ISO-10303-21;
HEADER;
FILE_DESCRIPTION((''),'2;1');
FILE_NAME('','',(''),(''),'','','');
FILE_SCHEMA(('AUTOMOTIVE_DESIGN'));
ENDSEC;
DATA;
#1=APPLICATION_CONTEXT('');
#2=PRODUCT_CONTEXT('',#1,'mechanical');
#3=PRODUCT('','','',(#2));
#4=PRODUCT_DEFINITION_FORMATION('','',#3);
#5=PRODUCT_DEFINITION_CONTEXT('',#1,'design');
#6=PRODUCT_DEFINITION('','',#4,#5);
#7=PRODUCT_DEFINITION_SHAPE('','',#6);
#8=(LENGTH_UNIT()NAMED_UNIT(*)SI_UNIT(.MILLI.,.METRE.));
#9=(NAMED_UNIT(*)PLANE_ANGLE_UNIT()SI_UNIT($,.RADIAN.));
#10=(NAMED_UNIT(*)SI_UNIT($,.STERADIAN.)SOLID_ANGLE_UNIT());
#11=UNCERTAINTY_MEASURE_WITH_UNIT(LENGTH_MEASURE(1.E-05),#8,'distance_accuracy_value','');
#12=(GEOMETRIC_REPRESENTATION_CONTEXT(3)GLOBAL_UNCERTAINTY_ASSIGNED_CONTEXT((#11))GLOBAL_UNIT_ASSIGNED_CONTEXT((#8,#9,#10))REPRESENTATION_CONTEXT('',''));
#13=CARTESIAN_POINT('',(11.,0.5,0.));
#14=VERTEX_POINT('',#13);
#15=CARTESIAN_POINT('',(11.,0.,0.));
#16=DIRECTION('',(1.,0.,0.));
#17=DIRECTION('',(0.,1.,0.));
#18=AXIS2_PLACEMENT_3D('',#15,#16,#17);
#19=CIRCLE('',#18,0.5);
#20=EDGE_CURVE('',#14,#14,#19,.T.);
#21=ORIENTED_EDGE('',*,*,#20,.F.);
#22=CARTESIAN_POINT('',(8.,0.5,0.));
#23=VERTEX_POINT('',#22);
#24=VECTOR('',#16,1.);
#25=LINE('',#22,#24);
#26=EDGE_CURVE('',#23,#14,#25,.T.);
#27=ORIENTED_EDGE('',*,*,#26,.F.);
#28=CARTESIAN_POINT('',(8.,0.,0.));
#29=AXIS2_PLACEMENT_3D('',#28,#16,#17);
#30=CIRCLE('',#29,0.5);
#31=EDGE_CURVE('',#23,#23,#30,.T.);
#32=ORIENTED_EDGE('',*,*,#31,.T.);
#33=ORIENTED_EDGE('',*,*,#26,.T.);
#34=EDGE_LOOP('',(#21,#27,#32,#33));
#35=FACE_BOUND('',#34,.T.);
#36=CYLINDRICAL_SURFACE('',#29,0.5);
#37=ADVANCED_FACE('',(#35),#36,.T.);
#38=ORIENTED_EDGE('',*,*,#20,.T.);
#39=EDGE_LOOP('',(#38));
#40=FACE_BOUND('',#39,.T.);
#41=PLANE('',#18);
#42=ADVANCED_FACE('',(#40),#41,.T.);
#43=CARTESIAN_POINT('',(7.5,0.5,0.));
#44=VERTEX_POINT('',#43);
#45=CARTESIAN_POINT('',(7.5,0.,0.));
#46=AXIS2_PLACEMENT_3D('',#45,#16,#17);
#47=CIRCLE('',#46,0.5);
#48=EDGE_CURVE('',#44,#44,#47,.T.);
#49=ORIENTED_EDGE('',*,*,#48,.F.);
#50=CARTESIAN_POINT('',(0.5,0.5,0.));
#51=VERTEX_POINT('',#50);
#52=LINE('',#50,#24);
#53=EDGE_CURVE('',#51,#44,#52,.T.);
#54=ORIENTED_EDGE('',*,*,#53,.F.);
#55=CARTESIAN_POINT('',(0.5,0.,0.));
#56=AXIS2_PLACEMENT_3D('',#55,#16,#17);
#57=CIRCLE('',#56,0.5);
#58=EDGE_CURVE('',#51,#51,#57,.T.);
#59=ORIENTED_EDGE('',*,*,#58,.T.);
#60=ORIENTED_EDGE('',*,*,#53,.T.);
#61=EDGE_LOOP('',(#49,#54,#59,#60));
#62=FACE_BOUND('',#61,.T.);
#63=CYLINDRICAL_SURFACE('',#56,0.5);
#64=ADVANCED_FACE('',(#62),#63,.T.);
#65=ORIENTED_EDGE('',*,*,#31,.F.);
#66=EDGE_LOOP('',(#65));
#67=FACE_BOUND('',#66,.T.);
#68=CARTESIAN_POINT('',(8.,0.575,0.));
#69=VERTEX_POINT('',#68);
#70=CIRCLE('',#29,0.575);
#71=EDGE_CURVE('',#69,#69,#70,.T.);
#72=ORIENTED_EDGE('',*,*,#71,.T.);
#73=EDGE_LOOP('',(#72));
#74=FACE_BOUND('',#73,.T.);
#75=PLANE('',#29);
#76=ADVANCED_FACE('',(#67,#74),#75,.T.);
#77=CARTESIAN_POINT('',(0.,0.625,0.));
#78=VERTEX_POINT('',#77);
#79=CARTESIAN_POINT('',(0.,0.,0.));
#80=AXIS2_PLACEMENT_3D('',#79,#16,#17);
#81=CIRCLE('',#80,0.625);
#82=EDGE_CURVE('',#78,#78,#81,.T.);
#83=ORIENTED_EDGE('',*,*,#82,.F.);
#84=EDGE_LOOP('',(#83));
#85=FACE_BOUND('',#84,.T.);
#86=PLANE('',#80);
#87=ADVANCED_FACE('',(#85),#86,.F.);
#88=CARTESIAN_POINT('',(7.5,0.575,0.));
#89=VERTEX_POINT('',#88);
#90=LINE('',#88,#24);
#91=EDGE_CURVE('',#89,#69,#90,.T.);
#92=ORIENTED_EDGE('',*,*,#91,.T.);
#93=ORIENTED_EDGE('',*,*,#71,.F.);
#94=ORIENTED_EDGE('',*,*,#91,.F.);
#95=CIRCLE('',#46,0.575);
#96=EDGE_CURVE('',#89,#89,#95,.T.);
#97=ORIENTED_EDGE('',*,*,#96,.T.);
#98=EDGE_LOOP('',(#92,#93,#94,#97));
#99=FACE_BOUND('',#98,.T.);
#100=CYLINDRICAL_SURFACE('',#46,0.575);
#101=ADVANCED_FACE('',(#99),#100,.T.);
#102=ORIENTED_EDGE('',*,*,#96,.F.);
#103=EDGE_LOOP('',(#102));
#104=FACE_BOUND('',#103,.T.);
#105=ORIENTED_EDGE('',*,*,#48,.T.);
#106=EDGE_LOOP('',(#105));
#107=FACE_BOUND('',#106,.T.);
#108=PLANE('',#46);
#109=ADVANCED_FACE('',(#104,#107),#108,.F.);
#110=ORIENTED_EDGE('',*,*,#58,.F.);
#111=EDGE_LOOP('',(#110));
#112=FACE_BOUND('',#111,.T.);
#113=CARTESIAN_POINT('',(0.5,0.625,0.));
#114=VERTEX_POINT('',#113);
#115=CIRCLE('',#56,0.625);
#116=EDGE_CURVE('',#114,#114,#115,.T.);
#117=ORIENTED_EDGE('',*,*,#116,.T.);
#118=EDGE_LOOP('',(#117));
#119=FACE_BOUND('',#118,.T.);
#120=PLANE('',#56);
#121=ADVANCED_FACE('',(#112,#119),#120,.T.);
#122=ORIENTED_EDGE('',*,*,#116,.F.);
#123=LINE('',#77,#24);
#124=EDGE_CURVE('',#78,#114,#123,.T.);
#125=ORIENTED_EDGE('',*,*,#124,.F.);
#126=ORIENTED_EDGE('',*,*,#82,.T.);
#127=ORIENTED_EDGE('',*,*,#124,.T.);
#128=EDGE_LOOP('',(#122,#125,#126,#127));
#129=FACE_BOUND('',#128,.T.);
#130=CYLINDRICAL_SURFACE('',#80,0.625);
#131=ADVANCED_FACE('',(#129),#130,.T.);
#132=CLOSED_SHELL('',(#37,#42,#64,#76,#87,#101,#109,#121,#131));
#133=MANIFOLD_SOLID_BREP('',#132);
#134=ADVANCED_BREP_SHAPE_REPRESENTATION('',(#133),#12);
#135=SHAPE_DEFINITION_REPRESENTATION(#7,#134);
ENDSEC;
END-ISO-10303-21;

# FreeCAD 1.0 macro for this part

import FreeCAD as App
import Part
import Sketcher
from FreeCAD import Vector
Q = App.Units.Quantity

doc = App.newDocument("Part")
params = doc.addObject("Spreadsheet::Sheet", "Params")
for row, (alias, value) in enumerate([
    ("sketch1_width", "0.5 mm"),
    ("sketch1_width2", "11 mm"),
    ("sketch1_width3", "3 mm"),
    ("revolution_angle", "360 deg"),
], start=1):
    params.set(f"A{row}", alias)
    params.set(f"B{row}", "=" + value)
    params.setAlias(f"B{row}", alias)

body = doc.addObject("PartDesign::Body", "Body")

sketch1 = body.newObject("Sketcher::SketchObject", "Sketch")
sketch1.AttachmentSupport = (doc.getObject("XY_Plane"), [""])
sketch1.MapMode = "FlatFace"
sketch1.addGeometry(Part.LineSegment(Vector(0, 0.62, 0), Vector(0, 0, 0)), False)
sketch1.addGeometry(Part.LineSegment(Vector(0, 0, 0), Vector(11, 0, 0)), False)
sketch1.addGeometry(Part.LineSegment(Vector(11, 0, 0), Vector(11, 0.5, 0)), False)
sketch1.addGeometry(Part.LineSegment(Vector(11, 0.5, 0), Vector(8, 0.5, 0)), False)
sketch1.addGeometry(Part.LineSegment(Vector(8, 0.5, 0), Vector(8, 0.57, 0)), False)
sketch1.addGeometry(Part.LineSegment(Vector(8, 0.57, 0), Vector(7.5, 0.57, 0)), False)
sketch1.addGeometry(Part.LineSegment(Vector(7.5, 0.57, 0), Vector(7.5, 0.5, 0)), False)
sketch1.addGeometry(Part.LineSegment(Vector(7.5, 0.5, 0), Vector(0.5, 0.5, 0)), False)
sketch1.addGeometry(Part.LineSegment(Vector(0.5, 0.5, 0), Vector(0.5, 0.62, 0)), False)
sketch1.addGeometry(Part.LineSegment(Vector(0.5, 0.62, 0), Vector(0, 0.62, 0)), False)
sketch1.addConstraint(Sketcher.Constraint("Coincident", 0, 2, 1, 1))
sketch1.addConstraint(Sketcher.Constraint("Coincident", 1, 2, 2, 1))
sketch1.addConstraint(Sketcher.Constraint("Coincident", 2, 2, 3, 1))
sketch1.addConstraint(Sketcher.Constraint("Coincident", 3, 2, 4, 1))
sketch1.addConstraint(Sketcher.Constraint("Coincident", 4, 2, 5, 1))
sketch1.addConstraint(Sketcher.Constraint("Coincident", 5, 2, 6, 1))
sketch1.addConstraint(Sketcher.Constraint("Coincident", 6, 2, 7, 1))
sketch1.addConstraint(Sketcher.Constraint("Coincident", 7, 2, 8, 1))
sketch1.addConstraint(Sketcher.Constraint("Coincident", 8, 2, 9, 1))
sketch1.addConstraint(Sketcher.Constraint("Coincident", 9, 2, 0, 1))
sketch1.addConstraint(Sketcher.Constraint("Vertical", 0))
sketch1.addConstraint(Sketcher.Constraint("Horizontal", 1))
sketch1.addConstraint(Sketcher.Constraint("Vertical", 2))
sketch1.addConstraint(Sketcher.Constraint("Horizontal", 3))
sketch1.addConstraint(Sketcher.Constraint("Vertical", 4))
sketch1.addConstraint(Sketcher.Constraint("Horizontal", 5))
sketch1.addConstraint(Sketcher.Constraint("Vertical", 6))
sketch1.addConstraint(Sketcher.Constraint("Horizontal", 7))
sketch1.addConstraint(Sketcher.Constraint("Vertical", 8))
sketch1.addConstraint(Sketcher.Constraint("Horizontal", 9))
sketch1.addConstraint(Sketcher.Constraint("Coincident", 0, 2, -1, 1))
sketch1.addConstraint(Sketcher.Constraint("Horizontal", 3, 2, 6, 2))
sketch1.addConstraint(Sketcher.Constraint("Equal", 5, 9))
sketch1.addConstraint(Sketcher.Constraint("Equal", 9, 2))
sketch1.addConstraint(Sketcher.Constraint("DistanceX", 5, 2, 5, 1, Q("0.5 mm")))
sketch1.addConstraint(Sketcher.Constraint("DistanceX", 1, 1, 1, 2, Q("11 mm")))
sketch1.addConstraint(Sketcher.Constraint("DistanceX", 3, 2, 3, 1, Q("3 mm")))
sketch1.addConstraint(Sketcher.Constraint("DistanceY", 0, 2, 0, 1, Q("0.625 mm")))
sketch1.addConstraint(Sketcher.Constraint("DistanceY", 4, 1, 4, 2, Q("0.075 mm")))
sketch1.setExpression("Constraints[24]", "Params.sketch1_width")
sketch1.setExpression("Constraints[25]", "Params.sketch1_width2")
sketch1.setExpression("Constraints[26]", "Params.sketch1_width3")
revolution = body.newObject("PartDesign::Revolution", "Revolution")
revolution.Profile = sketch1
revolution.ReferenceAxis = (sketch1, ["H_Axis"])
revolution.setExpression("Angle", "Params.revolution_angle")

doc.recompute()
